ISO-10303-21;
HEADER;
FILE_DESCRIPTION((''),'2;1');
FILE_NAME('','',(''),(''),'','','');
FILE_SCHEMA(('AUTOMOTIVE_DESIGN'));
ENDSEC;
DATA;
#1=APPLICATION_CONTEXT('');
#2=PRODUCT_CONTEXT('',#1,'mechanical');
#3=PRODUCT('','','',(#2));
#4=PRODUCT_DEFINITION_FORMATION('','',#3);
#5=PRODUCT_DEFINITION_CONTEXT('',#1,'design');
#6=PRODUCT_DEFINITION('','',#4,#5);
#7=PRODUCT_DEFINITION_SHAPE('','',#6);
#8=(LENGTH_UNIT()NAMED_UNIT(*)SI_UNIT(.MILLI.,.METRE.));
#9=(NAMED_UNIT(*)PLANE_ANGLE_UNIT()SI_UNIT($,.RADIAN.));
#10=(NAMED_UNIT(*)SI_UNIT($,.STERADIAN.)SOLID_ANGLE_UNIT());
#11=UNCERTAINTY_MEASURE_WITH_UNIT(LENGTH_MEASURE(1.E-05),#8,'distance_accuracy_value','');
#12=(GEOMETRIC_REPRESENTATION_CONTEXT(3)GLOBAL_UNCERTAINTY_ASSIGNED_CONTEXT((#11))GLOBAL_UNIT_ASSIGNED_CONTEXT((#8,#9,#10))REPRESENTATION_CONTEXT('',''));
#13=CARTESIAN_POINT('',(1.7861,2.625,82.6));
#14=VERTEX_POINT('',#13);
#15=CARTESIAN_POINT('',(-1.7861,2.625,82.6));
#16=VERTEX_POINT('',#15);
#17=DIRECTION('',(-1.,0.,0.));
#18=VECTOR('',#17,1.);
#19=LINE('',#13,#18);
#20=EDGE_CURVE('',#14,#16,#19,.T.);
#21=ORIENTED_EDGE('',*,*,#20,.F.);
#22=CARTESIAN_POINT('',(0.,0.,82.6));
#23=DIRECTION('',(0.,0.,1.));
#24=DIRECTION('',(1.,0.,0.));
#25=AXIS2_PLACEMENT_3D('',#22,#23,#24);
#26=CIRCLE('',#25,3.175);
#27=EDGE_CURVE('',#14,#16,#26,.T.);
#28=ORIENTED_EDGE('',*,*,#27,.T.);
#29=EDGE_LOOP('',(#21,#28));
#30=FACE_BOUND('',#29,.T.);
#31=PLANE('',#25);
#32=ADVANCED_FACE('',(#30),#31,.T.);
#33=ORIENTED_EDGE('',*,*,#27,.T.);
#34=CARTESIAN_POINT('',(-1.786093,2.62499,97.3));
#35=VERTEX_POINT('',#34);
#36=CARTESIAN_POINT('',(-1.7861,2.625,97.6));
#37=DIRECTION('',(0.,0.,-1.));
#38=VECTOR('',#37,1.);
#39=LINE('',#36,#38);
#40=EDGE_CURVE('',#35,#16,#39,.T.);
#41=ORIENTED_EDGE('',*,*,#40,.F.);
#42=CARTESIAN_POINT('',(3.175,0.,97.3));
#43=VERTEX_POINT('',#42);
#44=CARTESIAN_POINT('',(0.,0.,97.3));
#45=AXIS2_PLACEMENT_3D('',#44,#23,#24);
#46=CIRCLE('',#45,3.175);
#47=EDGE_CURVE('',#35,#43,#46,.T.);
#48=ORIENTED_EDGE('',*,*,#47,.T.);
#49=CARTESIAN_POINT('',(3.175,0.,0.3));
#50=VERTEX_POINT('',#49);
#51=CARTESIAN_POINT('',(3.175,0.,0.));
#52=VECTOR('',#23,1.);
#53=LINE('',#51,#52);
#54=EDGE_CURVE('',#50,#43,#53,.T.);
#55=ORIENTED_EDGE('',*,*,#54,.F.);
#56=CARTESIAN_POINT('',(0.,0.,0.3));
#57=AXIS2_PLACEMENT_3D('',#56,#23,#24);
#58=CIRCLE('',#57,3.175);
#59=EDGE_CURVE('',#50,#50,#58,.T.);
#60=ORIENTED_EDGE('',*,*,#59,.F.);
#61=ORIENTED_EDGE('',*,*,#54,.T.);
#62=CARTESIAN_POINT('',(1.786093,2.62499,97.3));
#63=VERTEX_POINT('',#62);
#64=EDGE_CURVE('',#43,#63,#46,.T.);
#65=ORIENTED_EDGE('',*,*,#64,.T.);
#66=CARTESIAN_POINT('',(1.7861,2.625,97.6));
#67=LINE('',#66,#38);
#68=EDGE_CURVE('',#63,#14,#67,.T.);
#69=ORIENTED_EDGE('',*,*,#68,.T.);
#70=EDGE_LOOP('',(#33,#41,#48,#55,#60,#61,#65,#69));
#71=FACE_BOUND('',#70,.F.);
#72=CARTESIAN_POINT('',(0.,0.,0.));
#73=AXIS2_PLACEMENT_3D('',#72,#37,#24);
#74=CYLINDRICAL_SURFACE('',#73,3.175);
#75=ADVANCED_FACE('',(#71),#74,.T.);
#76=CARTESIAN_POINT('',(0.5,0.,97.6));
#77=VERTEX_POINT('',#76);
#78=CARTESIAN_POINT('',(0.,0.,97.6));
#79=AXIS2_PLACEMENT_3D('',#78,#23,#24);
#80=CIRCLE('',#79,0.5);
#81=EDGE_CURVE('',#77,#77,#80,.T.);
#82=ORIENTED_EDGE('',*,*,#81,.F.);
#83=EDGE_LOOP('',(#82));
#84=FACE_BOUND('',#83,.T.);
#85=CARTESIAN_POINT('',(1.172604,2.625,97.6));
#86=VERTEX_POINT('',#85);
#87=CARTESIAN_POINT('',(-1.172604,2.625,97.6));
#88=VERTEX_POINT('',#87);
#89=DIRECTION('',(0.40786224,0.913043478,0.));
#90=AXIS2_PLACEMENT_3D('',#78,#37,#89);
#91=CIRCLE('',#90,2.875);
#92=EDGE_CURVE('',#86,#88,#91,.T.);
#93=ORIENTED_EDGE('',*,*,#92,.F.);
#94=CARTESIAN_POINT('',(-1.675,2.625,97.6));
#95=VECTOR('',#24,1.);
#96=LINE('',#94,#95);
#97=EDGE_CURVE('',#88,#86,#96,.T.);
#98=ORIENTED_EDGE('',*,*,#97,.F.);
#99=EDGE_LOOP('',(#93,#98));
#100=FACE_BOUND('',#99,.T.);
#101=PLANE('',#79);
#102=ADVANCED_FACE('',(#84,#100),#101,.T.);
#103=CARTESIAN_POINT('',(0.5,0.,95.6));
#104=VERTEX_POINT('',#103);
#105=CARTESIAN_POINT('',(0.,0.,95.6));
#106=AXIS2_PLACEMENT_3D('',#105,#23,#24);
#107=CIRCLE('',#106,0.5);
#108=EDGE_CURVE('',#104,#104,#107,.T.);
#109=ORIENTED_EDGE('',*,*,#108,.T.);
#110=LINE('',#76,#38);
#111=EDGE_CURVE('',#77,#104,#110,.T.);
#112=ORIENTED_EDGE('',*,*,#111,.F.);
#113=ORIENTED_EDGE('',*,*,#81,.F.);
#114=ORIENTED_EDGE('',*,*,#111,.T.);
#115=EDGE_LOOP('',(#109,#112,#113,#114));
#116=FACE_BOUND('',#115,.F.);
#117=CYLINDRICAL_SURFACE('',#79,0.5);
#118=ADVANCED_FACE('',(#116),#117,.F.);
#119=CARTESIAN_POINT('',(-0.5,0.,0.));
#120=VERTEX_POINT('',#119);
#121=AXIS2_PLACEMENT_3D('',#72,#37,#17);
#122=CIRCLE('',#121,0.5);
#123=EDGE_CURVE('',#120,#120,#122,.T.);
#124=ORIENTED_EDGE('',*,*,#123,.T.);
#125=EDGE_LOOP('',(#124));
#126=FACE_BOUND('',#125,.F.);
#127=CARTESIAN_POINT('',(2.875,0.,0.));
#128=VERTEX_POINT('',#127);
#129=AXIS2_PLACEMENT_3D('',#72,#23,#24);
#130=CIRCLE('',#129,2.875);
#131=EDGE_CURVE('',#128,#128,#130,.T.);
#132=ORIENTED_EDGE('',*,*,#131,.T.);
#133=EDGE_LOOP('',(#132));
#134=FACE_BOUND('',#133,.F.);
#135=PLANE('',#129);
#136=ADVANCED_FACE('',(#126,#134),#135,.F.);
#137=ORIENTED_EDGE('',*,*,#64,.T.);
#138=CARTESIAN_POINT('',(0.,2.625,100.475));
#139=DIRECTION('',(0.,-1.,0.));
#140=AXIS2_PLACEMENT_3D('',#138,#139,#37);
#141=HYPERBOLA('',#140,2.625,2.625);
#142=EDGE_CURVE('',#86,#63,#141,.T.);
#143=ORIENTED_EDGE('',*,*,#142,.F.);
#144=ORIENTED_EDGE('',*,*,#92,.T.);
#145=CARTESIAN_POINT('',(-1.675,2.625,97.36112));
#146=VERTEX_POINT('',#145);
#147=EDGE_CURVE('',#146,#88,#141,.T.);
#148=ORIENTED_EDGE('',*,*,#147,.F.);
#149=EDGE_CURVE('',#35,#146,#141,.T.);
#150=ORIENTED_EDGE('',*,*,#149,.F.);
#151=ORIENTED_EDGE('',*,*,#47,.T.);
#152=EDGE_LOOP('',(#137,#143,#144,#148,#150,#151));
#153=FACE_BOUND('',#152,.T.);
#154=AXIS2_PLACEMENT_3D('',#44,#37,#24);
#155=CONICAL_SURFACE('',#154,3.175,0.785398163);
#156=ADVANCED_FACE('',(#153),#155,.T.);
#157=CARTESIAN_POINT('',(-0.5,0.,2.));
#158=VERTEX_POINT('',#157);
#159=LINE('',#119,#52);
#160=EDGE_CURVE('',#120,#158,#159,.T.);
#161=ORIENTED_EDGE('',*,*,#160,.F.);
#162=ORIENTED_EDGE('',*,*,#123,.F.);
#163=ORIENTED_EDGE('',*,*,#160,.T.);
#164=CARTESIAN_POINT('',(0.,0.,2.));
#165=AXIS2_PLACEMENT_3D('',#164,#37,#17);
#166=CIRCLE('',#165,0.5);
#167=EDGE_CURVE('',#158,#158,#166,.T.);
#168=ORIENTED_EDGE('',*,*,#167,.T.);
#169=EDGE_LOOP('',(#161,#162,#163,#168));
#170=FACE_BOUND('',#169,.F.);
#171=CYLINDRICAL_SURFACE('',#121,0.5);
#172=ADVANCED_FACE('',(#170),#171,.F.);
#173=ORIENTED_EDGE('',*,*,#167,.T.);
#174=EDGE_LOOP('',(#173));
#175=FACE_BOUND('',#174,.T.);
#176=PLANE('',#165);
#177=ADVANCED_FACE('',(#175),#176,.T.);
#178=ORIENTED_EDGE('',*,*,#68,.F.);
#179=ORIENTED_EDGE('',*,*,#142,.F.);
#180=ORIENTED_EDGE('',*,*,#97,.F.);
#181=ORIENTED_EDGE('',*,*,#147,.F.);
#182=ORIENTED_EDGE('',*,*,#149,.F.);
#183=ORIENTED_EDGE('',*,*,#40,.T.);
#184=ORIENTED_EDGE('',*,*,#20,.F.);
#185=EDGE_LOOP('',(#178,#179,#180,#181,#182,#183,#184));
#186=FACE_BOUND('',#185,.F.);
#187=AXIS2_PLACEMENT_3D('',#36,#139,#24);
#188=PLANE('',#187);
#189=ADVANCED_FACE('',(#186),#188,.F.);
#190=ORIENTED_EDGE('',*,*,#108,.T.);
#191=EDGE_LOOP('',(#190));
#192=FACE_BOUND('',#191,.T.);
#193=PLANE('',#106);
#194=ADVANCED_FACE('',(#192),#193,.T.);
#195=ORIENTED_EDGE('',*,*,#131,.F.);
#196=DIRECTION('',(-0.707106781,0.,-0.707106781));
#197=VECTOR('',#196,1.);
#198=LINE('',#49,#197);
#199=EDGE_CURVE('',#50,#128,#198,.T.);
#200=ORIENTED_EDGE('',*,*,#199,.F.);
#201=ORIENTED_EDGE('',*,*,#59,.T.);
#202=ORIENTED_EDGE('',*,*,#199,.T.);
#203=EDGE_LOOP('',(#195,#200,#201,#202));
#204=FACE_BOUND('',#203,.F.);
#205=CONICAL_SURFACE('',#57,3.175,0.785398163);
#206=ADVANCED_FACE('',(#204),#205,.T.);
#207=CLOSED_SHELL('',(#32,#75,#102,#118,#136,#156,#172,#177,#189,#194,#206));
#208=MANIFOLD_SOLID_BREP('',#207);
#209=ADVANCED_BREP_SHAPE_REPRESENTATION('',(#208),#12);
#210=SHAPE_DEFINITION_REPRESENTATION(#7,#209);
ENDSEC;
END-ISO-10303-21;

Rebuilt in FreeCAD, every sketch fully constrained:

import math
import FreeCAD as App
import Part
import Sketcher
from FreeCAD import Vector


def edges_at(feature, points):
    """Names of the edges that pass closest to the given points."""
    edges = feature.Shape.Edges
    near = lambda p: min(range(len(edges)), key=lambda i: edges[i].distToShape(Part.Vertex(*p))[0])
    return sorted({f"Edge{near(p) + 1}" for p in points})

doc = App.newDocument("Part")
body = doc.addObject("PartDesign::Body", "Body")

# Sketch on XY plane
sketch1 = body.newObject("Sketcher::SketchObject", "Sketch")
sketch1.AttachmentSupport = (doc.getObject("XY_Plane"), [""])
sketch1.MapMode = "FlatFace"
sketch1.addGeometry(Part.Circle(Vector(0, 0, 0), Vector(0, 0, 1), 3.2), False)
sketch1.addConstraint([
    Sketcher.Constraint("Coincident", 0, 3, -1, 1),
    Sketcher.Constraint("Diameter", 0, 6.35),
])
pad1 = body.newObject("PartDesign::Pad", "Pad")
pad1.Profile = sketch1
pad1.Length = 97.6
doc.recompute()

chamfer = body.newObject("PartDesign::Chamfer", "Chamfer")
chamfer.Base = (pad1, edges_at(pad1, [(-3.175, 0, 97.6), (-3.175, 0, 0)]))
chamfer.Size = 0.3

# Sketch on XY plane
sketch2 = body.newObject("Sketcher::SketchObject", "Sketch001")
sketch2.AttachmentSupport = (doc.getObject("XY_Plane"), [""])
sketch2.MapMode = "FlatFace"
sketch2.AttachmentOffset = App.Placement(Vector(0, 0, 97.6), App.Rotation())
sketch2.addGeometry(Part.Circle(Vector(0, 0, 0), Vector(0, 0, 1), 0.5), False)
sketch2.addConstraint([
    Sketcher.Constraint("Coincident", 0, 3, -1, 1),
    Sketcher.Constraint("Diameter", 0, 1.0),
])
pocket1 = body.newObject("PartDesign::Pocket", "Pocket")
pocket1.Profile = sketch2
pocket1.Length = 2

# Sketch on XY plane
sketch3 = body.newObject("Sketcher::SketchObject", "Sketch002")
sketch3.AttachmentSupport = (doc.getObject("XY_Plane"), [""])
sketch3.MapMode = "FlatFace"
sketch3.addGeometry(Part.Circle(Vector(0, 0, 0), Vector(0, 0, 1), 0.5), False)
sketch3.addConstraint([
    Sketcher.Constraint("Coincident", 0, 3, -1, 1),
    Sketcher.Constraint("Diameter", 0, 1.0),
])
pocket2 = body.newObject("PartDesign::Pocket", "Pocket001")
pocket2.Profile = sketch3
pocket2.Length = 2
pocket2.Reversed = True

# Sketch on XY plane
sketch4 = body.newObject("Sketcher::SketchObject", "Sketch003")
sketch4.AttachmentSupport = (doc.getObject("XY_Plane"), [""])
sketch4.MapMode = "FlatFace"
sketch4.AttachmentOffset = App.Placement(Vector(0, 0, 97.6), App.Rotation())
sketch4.addGeometry([
    Part.LineSegment(Vector(-1.8, 2.6, 0), Vector(1.8, 2.6, 0)),
    Part.ArcOfCircle(Part.Circle(Vector(0, 0, 0), Vector(0, 0, 1), 3.2), math.radians(56), math.radians(124)),
], False)
sketch4.addConstraint([
    Sketcher.Constraint("Coincident", 0, 1, 1, 2),
    Sketcher.Constraint("Coincident", 1, 1, 0, 2),
    Sketcher.Constraint("Horizontal", 0),
    Sketcher.Constraint("Coincident", 1, 3, -1, 1),
    Sketcher.Constraint("DistanceY", -1, 1, 0, 1, 2.625),
    Sketcher.Constraint("Radius", 1, 3.175),
])
pocket3 = body.newObject("PartDesign::Pocket", "Pocket002")
pocket3.Profile = sketch4
pocket3.Length = 15

doc.recompute()
